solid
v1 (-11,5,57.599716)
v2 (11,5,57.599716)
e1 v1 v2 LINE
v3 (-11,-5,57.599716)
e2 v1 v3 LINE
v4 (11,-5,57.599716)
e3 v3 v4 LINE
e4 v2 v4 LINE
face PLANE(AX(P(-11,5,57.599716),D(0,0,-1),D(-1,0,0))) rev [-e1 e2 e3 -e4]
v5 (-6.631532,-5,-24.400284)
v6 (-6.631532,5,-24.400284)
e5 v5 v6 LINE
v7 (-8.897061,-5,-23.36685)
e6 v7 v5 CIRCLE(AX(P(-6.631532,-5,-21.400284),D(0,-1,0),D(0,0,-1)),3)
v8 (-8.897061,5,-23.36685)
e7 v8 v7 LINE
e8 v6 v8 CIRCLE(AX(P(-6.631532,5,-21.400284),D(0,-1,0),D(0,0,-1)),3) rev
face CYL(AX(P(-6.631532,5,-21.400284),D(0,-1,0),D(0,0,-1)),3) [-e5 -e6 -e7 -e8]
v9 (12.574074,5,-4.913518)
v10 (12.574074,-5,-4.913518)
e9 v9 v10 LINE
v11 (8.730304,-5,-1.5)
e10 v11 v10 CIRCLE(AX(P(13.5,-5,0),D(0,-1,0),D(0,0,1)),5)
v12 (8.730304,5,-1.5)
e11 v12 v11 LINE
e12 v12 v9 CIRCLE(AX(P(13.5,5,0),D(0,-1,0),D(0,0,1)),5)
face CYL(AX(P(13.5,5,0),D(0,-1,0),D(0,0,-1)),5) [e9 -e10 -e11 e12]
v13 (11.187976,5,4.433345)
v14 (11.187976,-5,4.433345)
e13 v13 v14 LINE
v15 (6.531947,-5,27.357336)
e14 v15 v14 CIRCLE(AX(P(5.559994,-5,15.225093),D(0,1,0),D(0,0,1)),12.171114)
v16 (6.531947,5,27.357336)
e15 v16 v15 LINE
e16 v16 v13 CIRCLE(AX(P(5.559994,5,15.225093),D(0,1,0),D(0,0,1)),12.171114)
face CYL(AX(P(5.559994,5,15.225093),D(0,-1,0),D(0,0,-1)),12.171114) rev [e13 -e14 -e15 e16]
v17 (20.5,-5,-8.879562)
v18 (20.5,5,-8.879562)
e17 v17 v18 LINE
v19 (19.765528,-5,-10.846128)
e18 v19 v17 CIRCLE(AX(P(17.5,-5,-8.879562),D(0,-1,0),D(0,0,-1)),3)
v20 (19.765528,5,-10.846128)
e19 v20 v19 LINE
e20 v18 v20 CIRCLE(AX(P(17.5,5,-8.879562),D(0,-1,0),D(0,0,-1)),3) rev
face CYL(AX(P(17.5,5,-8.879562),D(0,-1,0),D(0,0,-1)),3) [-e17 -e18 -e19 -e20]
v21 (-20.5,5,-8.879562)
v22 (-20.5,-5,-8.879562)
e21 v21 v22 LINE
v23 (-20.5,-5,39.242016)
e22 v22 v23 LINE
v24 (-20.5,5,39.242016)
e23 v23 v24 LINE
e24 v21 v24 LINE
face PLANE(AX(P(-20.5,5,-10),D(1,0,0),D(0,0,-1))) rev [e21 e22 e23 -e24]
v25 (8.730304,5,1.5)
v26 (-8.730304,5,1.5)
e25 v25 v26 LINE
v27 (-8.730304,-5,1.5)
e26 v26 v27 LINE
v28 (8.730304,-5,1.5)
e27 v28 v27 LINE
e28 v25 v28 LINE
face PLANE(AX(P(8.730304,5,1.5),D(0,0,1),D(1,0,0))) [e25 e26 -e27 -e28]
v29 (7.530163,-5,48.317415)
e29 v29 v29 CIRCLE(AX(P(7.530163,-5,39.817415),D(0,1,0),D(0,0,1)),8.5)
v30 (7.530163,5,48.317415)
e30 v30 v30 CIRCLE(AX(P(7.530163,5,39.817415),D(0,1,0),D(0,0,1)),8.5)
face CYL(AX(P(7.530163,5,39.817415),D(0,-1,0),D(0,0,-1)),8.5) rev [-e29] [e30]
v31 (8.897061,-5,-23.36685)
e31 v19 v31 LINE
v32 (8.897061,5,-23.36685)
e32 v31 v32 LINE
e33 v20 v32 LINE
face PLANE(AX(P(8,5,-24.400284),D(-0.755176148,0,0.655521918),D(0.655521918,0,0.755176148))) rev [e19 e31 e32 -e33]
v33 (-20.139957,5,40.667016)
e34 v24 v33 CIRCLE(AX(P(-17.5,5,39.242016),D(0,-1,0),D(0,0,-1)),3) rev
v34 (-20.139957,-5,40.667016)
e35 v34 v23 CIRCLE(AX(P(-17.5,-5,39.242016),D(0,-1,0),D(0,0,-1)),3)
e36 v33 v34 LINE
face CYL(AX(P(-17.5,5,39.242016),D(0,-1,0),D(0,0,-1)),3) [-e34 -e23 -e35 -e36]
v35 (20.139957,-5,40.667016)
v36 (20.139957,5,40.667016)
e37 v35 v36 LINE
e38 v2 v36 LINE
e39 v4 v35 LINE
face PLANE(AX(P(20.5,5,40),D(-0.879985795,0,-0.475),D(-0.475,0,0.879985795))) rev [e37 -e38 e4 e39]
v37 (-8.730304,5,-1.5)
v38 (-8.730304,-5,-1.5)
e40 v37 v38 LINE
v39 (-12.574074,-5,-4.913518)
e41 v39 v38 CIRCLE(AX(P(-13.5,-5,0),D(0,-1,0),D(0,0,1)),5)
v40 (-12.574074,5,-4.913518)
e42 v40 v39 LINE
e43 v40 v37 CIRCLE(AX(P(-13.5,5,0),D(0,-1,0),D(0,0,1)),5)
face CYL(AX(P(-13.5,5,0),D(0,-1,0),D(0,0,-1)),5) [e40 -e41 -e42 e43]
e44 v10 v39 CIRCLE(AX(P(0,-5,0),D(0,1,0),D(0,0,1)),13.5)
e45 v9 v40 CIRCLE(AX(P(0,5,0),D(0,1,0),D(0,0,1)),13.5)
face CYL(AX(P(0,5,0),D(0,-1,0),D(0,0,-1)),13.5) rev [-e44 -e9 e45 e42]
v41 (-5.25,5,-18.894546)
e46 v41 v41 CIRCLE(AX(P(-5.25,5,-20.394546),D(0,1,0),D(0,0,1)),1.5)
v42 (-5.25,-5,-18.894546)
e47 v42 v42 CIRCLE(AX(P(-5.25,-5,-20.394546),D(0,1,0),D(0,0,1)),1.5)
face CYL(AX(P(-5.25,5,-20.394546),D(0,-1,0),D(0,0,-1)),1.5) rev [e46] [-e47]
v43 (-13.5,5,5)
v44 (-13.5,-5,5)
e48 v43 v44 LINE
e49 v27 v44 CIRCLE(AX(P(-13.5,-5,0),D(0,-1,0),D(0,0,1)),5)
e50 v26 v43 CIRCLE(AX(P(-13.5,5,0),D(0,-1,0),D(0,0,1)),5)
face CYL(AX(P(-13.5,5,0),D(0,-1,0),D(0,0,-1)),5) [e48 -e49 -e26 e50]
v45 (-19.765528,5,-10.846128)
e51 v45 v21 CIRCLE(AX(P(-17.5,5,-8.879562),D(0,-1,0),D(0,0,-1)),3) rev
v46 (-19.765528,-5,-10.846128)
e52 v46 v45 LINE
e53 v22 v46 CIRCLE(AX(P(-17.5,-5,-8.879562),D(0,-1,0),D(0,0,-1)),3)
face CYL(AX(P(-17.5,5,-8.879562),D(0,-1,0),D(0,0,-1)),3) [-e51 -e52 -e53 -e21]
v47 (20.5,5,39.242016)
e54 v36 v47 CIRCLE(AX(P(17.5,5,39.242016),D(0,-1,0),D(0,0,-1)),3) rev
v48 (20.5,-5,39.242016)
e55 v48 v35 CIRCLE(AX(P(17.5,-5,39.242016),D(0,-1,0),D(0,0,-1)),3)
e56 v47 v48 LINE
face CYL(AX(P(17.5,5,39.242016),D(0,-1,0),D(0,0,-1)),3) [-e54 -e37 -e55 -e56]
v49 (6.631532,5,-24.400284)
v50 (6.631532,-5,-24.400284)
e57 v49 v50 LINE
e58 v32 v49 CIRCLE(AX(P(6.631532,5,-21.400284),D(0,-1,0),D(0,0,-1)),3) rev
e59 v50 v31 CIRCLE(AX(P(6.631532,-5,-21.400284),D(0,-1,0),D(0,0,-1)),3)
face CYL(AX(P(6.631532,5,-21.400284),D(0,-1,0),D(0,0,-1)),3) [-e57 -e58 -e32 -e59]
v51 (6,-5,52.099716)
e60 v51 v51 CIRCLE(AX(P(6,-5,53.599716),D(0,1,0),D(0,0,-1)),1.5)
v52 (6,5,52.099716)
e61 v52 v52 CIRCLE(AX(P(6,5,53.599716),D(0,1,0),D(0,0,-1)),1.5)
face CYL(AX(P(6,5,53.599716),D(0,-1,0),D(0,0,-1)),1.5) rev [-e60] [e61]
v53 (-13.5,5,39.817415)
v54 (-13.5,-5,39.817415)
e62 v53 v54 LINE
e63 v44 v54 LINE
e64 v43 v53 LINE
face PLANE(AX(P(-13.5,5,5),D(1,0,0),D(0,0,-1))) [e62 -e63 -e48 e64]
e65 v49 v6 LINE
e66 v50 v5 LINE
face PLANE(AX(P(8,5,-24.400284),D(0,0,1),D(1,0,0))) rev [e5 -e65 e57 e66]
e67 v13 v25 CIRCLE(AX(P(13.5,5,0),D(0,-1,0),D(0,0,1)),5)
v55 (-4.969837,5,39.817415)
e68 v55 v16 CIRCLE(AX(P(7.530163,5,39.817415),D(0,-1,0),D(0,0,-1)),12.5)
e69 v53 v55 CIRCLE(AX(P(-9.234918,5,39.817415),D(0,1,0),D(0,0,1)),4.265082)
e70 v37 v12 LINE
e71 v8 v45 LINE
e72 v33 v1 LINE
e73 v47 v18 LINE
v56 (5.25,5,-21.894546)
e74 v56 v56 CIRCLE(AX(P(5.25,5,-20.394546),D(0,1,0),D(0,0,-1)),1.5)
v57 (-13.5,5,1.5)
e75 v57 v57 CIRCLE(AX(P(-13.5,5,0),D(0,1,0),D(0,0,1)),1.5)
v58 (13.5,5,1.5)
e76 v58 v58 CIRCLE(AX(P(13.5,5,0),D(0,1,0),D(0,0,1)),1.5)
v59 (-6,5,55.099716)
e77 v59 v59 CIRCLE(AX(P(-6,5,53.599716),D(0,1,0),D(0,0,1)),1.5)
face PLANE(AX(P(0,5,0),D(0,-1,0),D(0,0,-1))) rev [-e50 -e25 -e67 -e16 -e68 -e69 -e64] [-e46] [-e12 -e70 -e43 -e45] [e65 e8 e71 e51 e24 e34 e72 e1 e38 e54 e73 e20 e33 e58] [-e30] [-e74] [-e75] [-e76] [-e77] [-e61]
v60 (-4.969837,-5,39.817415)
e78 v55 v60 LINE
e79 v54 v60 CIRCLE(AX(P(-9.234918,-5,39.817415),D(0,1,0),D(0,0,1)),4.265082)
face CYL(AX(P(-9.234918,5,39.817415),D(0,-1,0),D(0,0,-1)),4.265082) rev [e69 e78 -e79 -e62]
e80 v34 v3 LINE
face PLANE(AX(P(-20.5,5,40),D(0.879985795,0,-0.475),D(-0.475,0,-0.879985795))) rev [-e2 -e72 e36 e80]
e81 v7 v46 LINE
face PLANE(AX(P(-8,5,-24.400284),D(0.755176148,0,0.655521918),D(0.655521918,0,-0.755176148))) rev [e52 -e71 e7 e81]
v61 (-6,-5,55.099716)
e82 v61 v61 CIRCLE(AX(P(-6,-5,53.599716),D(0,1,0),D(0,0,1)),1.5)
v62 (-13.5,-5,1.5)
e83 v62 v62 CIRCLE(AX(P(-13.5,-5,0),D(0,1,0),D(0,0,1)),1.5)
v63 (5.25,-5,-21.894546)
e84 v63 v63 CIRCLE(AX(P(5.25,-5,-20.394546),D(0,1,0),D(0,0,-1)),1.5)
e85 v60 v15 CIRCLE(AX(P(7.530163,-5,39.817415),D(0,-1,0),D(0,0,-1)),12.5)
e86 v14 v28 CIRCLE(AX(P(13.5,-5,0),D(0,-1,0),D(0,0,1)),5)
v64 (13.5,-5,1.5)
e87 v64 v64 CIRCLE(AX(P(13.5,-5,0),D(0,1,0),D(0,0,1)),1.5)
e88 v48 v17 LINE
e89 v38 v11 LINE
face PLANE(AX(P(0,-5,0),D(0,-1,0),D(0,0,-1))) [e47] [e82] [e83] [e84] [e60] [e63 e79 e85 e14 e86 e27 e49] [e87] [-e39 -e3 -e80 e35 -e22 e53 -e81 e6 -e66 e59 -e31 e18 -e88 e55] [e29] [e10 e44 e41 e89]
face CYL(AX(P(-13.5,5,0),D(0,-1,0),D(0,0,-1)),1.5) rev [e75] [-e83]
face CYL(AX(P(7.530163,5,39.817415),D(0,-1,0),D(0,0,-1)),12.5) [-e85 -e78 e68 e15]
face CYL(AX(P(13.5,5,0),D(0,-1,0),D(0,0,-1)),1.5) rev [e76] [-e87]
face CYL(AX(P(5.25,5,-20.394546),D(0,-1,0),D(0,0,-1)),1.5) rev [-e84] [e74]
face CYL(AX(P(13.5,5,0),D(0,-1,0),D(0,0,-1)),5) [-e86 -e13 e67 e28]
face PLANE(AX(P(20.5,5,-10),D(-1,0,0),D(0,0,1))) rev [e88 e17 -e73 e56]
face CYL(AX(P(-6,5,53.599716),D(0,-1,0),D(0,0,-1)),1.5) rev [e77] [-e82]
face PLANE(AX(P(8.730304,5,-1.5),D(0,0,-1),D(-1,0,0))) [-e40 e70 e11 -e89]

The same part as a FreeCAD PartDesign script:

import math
import FreeCAD as App
import Part
import Sketcher
from FreeCAD import Vector


def edges_at(feature, points):
    """Names of the edges that pass closest to the given points."""
    edges = feature.Shape.Edges
    near = lambda p: min(range(len(edges)), key=lambda i: edges[i].distToShape(Part.Vertex(*p))[0])
    return sorted({f"Edge{near(p) + 1}" for p in points})


def add_polygon(sketch, points):
    """Adds a closed chain of lines whose ends are joined by coincident constraints."""
    first, n = sketch.GeometryCount, len(points)
    for a, b in zip(points, points[1:] + points[:1]):
        sketch.addGeometry(Part.LineSegment(App.Vector(*a, 0), App.Vector(*b, 0)), False)
    for i in range(n):
        sketch.addConstraint(Sketcher.Constraint("Coincident", first + i, 2, first + (i + 1) % n, 1))

doc = App.newDocument("Part")
body = doc.addObject("PartDesign::Body", "Body")

# Sketch on XZ plane
sketch1 = body.newObject("Sketcher::SketchObject", "Sketch")
sketch1.AttachmentSupport = (doc.getObject("XZ_Plane"), [""])
sketch1.MapMode = "FlatFace"
add_polygon(sketch1, [(8, -24.4), (-8, -24.4), (-20.5, -10), (-20.5, 40), (-11, 57.6), (11, 57.6), (20.5, 40), (20.5, -10)])  # lines 0-7
sketch1.addGeometry(Part.Circle(Vector(-6, 53.6, 0), Vector(0, 0, 1), 1.5), False)  # 8
sketch1.addGeometry(Part.Circle(Vector(6, 53.6, 0), Vector(0, 0, 1), 1.5), False)  # 9
sketch1.addGeometry(Part.Circle(Vector(7.5, 39.8, 0), Vector(0, 0, 1), 8.5), False)  # 10
sketch1.addGeometry(Part.LineSegment(Vector(-13.5, 39.8, 0), Vector(-13.5, 5, 0)), False)  # 11
sketch1.addGeometry(Part.ArcOfCircle(Part.Circle(Vector(-13.5, 0, 0), Vector(0, 0, 1), 5), math.radians(17), math.radians(90)), False)  # 12
sketch1.addGeometry(Part.LineSegment(Vector(-8.7, 1.5, 0), Vector(8.7, 1.5, 0)), False)  # 13
sketch1.addGeometry(Part.ArcOfCircle(Part.Circle(Vector(13.5, 0, 0), Vector(0, 0, 1), 5), math.radians(118), math.radians(163)), False)  # 14
sketch1.addGeometry(Part.ArcOfCircle(Part.Circle(Vector(5.6, 15.2, 0), Vector(0, 0, 1), 12.2), math.radians(-62), math.radians(85)), False)  # 15
sketch1.addGeometry(Part.ArcOfCircle(Part.Circle(Vector(7.5, 39.8, 0), Vector(0, 0, 1), 12.5), math.radians(180), math.radians(265)), False)  # 16
sketch1.addGeometry(Part.ArcOfCircle(Part.Circle(Vector(-9.2, 39.8, 0), Vector(0, 0, 1), 4.3), math.radians(0), math.radians(180)), False)  # 17
sketch1.addGeometry(Part.Circle(Vector(-13.5, 0, 0), Vector(0, 0, 1), 1.5), False)  # 18
sketch1.addGeometry(Part.ArcOfCircle(Part.Circle(Vector(13.5, 0, 0), Vector(0, 0, 1), 5), math.radians(-163), math.radians(-101)), False)  # 19
sketch1.addGeometry(Part.LineSegment(Vector(8.7, -1.5, 0), Vector(-8.7, -1.5, 0)), False)  # 20
sketch1.addGeometry(Part.ArcOfCircle(Part.Circle(Vector(-13.5, 0, 0), Vector(0, 0, 1), 5), math.radians(-79), math.radians(-17)), False)  # 21
sketch1.addGeometry(Part.ArcOfCircle(Part.Circle(Vector(0, 0, 0), Vector(0, 0, 1), 13.5), math.radians(-159), math.radians(-21)), False)  # 22
sketch1.addGeometry(Part.Circle(Vector(-5.2, -20.4, 0), Vector(0, 0, 1), 1.5), False)  # 23
sketch1.addGeometry(Part.Circle(Vector(13.5, 0, 0), Vector(0, 0, 1), 1.5), False)  # 24
sketch1.addGeometry(Part.Circle(Vector(5.2, -20.4, 0), Vector(0, 0, 1), 1.5), False)  # 25
sketch1.addConstraint([
    Sketcher.Constraint("Coincident", 11, 2, 12, 2),
    Sketcher.Constraint("Coincident", 12, 1, 13, 1),
    Sketcher.Constraint("Coincident", 13, 2, 14, 2),
    Sketcher.Constraint("Tangent", 14, 1, 15, 1),
    Sketcher.Constraint("Tangent", 15, 2, 16, 2),
    Sketcher.Constraint("Tangent", 16, 1, 17, 1),
    Sketcher.Constraint("Tangent", 17, 2, 11, 1),
    Sketcher.Constraint("Coincident", 19, 1, 20, 1),
    Sketcher.Constraint("Coincident", 20, 2, 21, 2),
    Sketcher.Constraint("Coincident", 21, 1, 22, 1),
    Sketcher.Constraint("Coincident", 22, 2, 19, 2),
    Sketcher.Constraint("Horizontal", 0),
    Sketcher.Constraint("Vertical", 2),
    Sketcher.Constraint("Horizontal", 4),
    Sketcher.Constraint("Vertical", 6),
    Sketcher.Constraint("Vertical", 11),
    Sketcher.Constraint("Horizontal", 13),
    Sketcher.Constraint("Horizontal", 20),
    Sketcher.Constraint("Coincident", 22, 3, -1, 1),
    Sketcher.Constraint("Coincident", 16, 3, 10, 3),
    Sketcher.Constraint("Coincident", 18, 3, 12, 3),
    Sketcher.Constraint("Coincident", 19, 3, 14, 3),
    Sketcher.Constraint("Coincident", 21, 3, 12, 3),
    Sketcher.Constraint("Coincident", 24, 3, 14, 3),
    Sketcher.Constraint("Equal", 8, 9),
    Sketcher.Constraint("Equal", 12, 14),
    Sketcher.Constraint("Equal", 9, 18),
    Sketcher.Constraint("Equal", 14, 19),
    Sketcher.Constraint("Equal", 19, 21),
    Sketcher.Constraint("Equal", 18, 23),
    Sketcher.Constraint("Equal", 23, 24),
    Sketcher.Constraint("Equal", 24, 25),
    Sketcher.Constraint("Symmetric", 12, 3, 14, 3, -1, 1),
    Sketcher.Constraint("Symmetric", 8, 3, 9, 3, -2),
    Sketcher.Constraint("Symmetric", 23, 3, 25, 3, -2),
    Sketcher.Constraint("Symmetric", 2, 2, 5, 2, -2),
    Sketcher.Constraint("Symmetric", 13, 2, 19, 1, -1),
    Sketcher.Constraint("Horizontal", 16, 3, 17, 3),
    Sketcher.Constraint("Horizontal", 1, 2, 6, 2),
    Sketcher.Constraint("Vertical", 21, 3, 11, 2),
    Sketcher.Constraint("Equal", 3, 5),
    Sketcher.Constraint("Equal", 1, 7),
    Sketcher.Constraint("Diameter", 8, 3.0),
    Sketcher.Constraint("Diameter", 10, 17.0),
    Sketcher.Constraint("Radius", 12, 5.0),
    Sketcher.Constraint("Radius", 16, 12.5),
    Sketcher.Constraint("Radius", 22, 13.5),
    Sketcher.Constraint("DistanceX", 0, 2, 0, 1, 16.0),
    Sketcher.Constraint("DistanceX", 4, 1, 4, 2, 22.0),
    Sketcher.Constraint("DistanceY", 2, 1, 2, 2, 50.0),
    Sketcher.Constraint("Distance", 3, 20.0),
    Sketcher.Constraint("DistanceX", 8, 3, -1, 1, 6.0),
    Sketcher.Constraint("DistanceY", 1, 2, -1, 1, 10.0),
    Sketcher.Constraint("DistanceX", 12, 3, 14, 3, 27.0),
    Sketcher.Constraint("DistanceX", 1, 2, 18, 3, 7.0),
    Sketcher.Constraint("DistanceY", 8, 3, 3, 2, 4.0),
    Sketcher.Constraint("DistanceY", 19, 1, 13, 2, 3.0),
    Sketcher.Constraint("DistanceX", 23, 3, 25, 3, 10.5),
    Sketcher.Constraint("Radius", 17, 4.265082),
    Sketcher.Constraint("Radius", 15, 12.171114),
    Sketcher.Constraint("DistanceY", 10, 3, 9, 3, 13.782301),
    Sketcher.Constraint("DistanceY", 0, 2, 23, 3, 4.005738),
    Sketcher.Constraint("Distance", 1, 19.068775),
])
pad1 = body.newObject("PartDesign::Pad", "Pad")
pad1.Profile = sketch1
pad1.Length = 10
pad1.Midplane = True
doc.recompute()

fillet = body.newObject("PartDesign::Fillet", "Fillet")
fillet.Base = (pad1, edges_at(pad1, [
    (-20.5, 0, 40),
    (-20.5, 0, -10),
    (-8, 0, -24.4),
    (8, 0, -24.4),
    (20.5, 0, -10),
    (20.5, 0, 40),
]))
fillet.Radius = 3

doc.recompute()
